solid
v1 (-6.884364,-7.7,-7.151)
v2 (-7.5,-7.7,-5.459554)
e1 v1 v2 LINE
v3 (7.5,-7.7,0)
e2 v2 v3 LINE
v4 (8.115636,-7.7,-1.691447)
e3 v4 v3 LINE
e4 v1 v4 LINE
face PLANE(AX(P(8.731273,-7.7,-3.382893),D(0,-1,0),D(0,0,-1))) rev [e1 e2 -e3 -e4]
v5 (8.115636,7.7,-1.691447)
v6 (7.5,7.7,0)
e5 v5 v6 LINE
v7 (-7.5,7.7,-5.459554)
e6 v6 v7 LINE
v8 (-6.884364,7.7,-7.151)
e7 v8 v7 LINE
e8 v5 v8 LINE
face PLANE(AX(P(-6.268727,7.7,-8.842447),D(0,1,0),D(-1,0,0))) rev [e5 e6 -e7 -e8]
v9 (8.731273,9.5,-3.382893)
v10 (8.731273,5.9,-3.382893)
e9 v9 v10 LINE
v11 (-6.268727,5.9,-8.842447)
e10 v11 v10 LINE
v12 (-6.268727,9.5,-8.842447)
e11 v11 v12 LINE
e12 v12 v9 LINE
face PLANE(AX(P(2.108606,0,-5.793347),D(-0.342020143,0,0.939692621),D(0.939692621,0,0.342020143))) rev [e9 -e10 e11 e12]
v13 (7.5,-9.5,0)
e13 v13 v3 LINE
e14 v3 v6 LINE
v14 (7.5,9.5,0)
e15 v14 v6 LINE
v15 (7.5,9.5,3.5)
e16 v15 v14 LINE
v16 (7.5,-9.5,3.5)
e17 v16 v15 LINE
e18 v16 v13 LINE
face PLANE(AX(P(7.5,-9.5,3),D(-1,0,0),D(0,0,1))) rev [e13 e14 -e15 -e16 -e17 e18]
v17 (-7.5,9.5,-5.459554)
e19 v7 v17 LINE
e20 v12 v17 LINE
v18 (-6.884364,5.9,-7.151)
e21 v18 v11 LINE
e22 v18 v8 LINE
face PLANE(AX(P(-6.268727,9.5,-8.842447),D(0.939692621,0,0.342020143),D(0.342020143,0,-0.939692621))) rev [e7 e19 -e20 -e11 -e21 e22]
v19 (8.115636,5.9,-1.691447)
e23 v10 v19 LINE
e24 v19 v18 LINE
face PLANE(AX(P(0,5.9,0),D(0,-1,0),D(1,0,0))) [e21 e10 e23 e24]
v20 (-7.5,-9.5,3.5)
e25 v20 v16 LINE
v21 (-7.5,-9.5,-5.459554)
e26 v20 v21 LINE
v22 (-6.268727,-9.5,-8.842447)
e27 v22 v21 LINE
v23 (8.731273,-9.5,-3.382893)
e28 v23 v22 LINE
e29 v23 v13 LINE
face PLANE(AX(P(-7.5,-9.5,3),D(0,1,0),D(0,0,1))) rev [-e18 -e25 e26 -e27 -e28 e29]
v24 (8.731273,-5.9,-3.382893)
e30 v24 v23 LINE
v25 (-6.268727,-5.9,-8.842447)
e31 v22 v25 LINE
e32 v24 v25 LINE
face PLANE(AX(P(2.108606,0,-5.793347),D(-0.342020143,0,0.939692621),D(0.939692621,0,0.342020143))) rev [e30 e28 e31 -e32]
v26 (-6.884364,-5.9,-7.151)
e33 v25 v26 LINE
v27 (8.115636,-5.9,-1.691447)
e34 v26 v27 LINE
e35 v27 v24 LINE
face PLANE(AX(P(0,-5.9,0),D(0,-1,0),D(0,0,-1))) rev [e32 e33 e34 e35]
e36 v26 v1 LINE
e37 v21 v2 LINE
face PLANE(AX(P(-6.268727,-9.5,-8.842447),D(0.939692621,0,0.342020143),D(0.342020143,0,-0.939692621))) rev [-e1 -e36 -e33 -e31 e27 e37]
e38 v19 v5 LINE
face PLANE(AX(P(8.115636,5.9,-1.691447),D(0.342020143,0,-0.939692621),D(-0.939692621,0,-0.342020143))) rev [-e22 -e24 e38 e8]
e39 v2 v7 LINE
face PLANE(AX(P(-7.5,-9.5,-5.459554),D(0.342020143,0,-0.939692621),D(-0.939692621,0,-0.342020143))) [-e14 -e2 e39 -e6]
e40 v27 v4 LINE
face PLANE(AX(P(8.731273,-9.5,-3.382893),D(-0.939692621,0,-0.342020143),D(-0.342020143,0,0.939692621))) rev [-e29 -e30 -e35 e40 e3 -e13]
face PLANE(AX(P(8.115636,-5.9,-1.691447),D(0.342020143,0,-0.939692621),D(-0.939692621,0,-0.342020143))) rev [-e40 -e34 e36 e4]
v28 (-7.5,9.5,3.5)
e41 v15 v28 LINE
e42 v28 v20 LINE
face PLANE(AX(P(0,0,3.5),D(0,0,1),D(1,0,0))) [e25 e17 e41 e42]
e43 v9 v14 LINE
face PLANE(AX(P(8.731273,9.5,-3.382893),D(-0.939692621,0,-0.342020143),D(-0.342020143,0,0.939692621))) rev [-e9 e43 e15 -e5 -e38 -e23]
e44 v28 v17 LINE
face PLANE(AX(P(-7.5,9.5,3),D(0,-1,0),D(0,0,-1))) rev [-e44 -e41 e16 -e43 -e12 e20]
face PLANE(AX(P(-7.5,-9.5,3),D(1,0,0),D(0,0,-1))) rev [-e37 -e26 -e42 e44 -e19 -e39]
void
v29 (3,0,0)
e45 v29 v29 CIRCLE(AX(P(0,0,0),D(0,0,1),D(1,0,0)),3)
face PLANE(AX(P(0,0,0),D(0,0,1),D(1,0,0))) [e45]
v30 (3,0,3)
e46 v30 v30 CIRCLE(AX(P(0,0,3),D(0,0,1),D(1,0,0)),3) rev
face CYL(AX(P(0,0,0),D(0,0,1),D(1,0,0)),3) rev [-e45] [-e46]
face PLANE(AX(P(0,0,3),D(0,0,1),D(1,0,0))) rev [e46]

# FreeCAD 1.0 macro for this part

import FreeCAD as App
import Part
import Sketcher
Q = App.Units.Quantity

doc = App.newDocument("Part")
body = doc.addObject("PartDesign::Body", "Body")

sketch1 = body.newObject("Sketcher::SketchObject", "Sketch")
sketch1.AttachmentSupport = (doc.getObject("XY_Plane"), [""])
sketch1.MapMode = "FlatFace"
sketch1.addGeometry([
    Part.LineSegment(App.Vector(-7.5, 9.5, 0), App.Vector(-7.5, -9.5, 0)),
    Part.LineSegment(App.Vector(-7.5, -9.5, 0), App.Vector(7.5, -9.5, 0)),
    Part.LineSegment(App.Vector(7.5, -9.5, 0), App.Vector(7.5, 9.5, 0)),
    Part.LineSegment(App.Vector(7.5, 9.5, 0), App.Vector(-7.5, 9.5, 0)),
], False)
sketch1.addConstraint([
    Sketcher.Constraint("Coincident", 0, 2, 1, 1),
    Sketcher.Constraint("Coincident", 1, 2, 2, 1),
    Sketcher.Constraint("Coincident", 2, 2, 3, 1),
    Sketcher.Constraint("Coincident", 3, 2, 0, 1),
    Sketcher.Constraint("Vertical", 0),
    Sketcher.Constraint("Horizontal", 1),
    Sketcher.Constraint("Vertical", 2),
    Sketcher.Constraint("Horizontal", 3),
    Sketcher.Constraint("Symmetric", 0, 2, 2, 2, -1, 1),
    Sketcher.Constraint("DistanceX", 1, 1, 1, 2, Q("15 mm")),
    Sketcher.Constraint("DistanceY", 0, 2, 0, 1, Q("19 mm")),
])
pad1 = body.newObject("PartDesign::Pad", "Pad")
pad1.Profile = sketch1
pad1.Length = 3

sketch2 = body.newObject("Sketcher::SketchObject", "Sketch001")
sketch2.AttachmentSupport = (doc.getObject("XZ_Plane"), [""])
sketch2.MapMode = "FlatFace"
sketch2.AttachmentOffset = App.Placement(App.Vector(0, 0, -9.5), App.Rotation())
sketch2.addGeometry([
    Part.LineSegment(App.Vector(-7.5, -5.459554, 0), App.Vector(-7.5, 0, 0)),
    Part.LineSegment(App.Vector(-7.5, 0, 0), App.Vector(7.5, 0, 0)),
    Part.LineSegment(App.Vector(7.5, 0, 0), App.Vector(-7.5, -5.459554, 0)),
], False)
sketch2.addConstraint([
    Sketcher.Constraint("Coincident", 0, 2, 1, 1),
    Sketcher.Constraint("Coincident", 1, 2, 2, 1),
    Sketcher.Constraint("Coincident", 2, 2, 0, 1),
    Sketcher.Constraint("Vertical", 0),
    Sketcher.Constraint("Horizontal", 1),
    Sketcher.Constraint("Symmetric", 0, 2, 1, 2, -1, 1),
    Sketcher.Constraint("DistanceX", 1, 1, 1, 2, Q("15 mm")),
    Sketcher.Constraint("Angle", 2, Q("-160 deg")),
])
pad2 = body.newObject("PartDesign::Pad", "Pad001")
pad2.Profile = sketch2
pad2.Length = 19

sketch3 = body.newObject("Sketcher::SketchObject", "Sketch002")
sketch3.AttachmentSupport = (doc.getObject("XY_Plane"), [""])
sketch3.MapMode = "FlatFace"
sketch3.AttachmentOffset = App.Placement(App.Vector(0, 0, 3), App.Rotation())
sketch3.addGeometry(Part.Circle(App.Vector(0, 0, 0), App.Vector(0, 0, 1), 3), False)
sketch3.addConstraint([
    Sketcher.Constraint("Coincident", 0, 3, -1, 1),
    Sketcher.Constraint("Diameter", 0, Q("6 mm")),
])
pocket1 = body.newObject("PartDesign::Pocket", "Pocket")
pocket1.Profile = sketch3
pocket1.Length = 3

sketch4 = body.newObject("Sketcher::SketchObject", "Sketch003")
sketch4.AttachmentSupport = (doc.getObject("XY_Plane"), [""])
sketch4.MapMode = "FlatFace"
sketch4.AttachmentOffset = App.Placement(App.Vector(0, 0, 3), App.Rotation())
sketch4.addGeometry([
    Part.LineSegment(App.Vector(-7.5, 9.5, 0), App.Vector(-7.5, -9.5, 0)),
    Part.LineSegment(App.Vector(-7.5, -9.5, 0), App.Vector(7.5, -9.5, 0)),
    Part.LineSegment(App.Vector(7.5, -9.5, 0), App.Vector(7.5, 9.5, 0)),
    Part.LineSegment(App.Vector(7.5, 9.5, 0), App.Vector(-7.5, 9.5, 0)),
], False)
sketch4.addConstraint([
    Sketcher.Constraint("Coincident", 0, 2, 1, 1),
    Sketcher.Constraint("Coincident", 1, 2, 2, 1),
    Sketcher.Constraint("Coincident", 2, 2, 3, 1),
    Sketcher.Constraint("Coincident", 3, 2, 0, 1),
    Sketcher.Constraint("Vertical", 0),
    Sketcher.Constraint("Horizontal", 1),
    Sketcher.Constraint("Vertical", 2),
    Sketcher.Constraint("Horizontal", 3),
    Sketcher.Constraint("Symmetric", 0, 2, 2, 2, -1, 1),
    Sketcher.Constraint("DistanceX", 1, 1, 1, 2, Q("15 mm")),
    Sketcher.Constraint("DistanceY", 0, 2, 0, 1, Q("19 mm")),
])
pad3 = body.newObject("PartDesign::Pad", "Pad002")
pad3.Profile = sketch4
pad3.Length = 0.5

sketch5 = body.newObject("Sketcher::SketchObject", "Sketch004")
sketch5.Placement = App.Placement(App.Vector(0.877333, 0, -2.410454), App.Rotation(App.Vector(-0.939692621, 0, -0.342020143), App.Vector(0, 1, 0), App.Vector(0.342020143, 0, -0.939692621), "ZXY"))
sketch5.addGeometry([
    Part.LineSegment(App.Vector(-7.047695, 9.5, 0), App.Vector(-7.047695, 7.7, 0)),
    Part.LineSegment(App.Vector(-7.047695, 7.7, 0), App.Vector(8.914972, 7.7, 0)),
    Part.LineSegment(App.Vector(8.914972, 7.7, 0), App.Vector(8.914972, 9.5, 0)),
    Part.LineSegment(App.Vector(8.914972, 9.5, 0), App.Vector(-7.047695, 9.5, 0)),
    Part.LineSegment(App.Vector(-7.047695, -7.7, 0), App.Vector(-7.047695, -9.5, 0)),
    Part.LineSegment(App.Vector(-7.047695, -9.5, 0), App.Vector(8.914972, -9.5, 0)),
    Part.LineSegment(App.Vector(8.914972, -9.5, 0), App.Vector(8.914972, -7.7, 0)),
    Part.LineSegment(App.Vector(8.914972, -7.7, 0), App.Vector(-7.047695, -7.7, 0)),
], False)
sketch5.addConstraint([
    Sketcher.Constraint("Coincident", 0, 2, 1, 1),
    Sketcher.Constraint("Coincident", 1, 2, 2, 1),
    Sketcher.Constraint("Coincident", 2, 2, 3, 1),
    Sketcher.Constraint("Coincident", 3, 2, 0, 1),
    Sketcher.Constraint("Coincident", 4, 2, 5, 1),
    Sketcher.Constraint("Coincident", 5, 2, 6, 1),
    Sketcher.Constraint("Coincident", 6, 2, 7, 1),
    Sketcher.Constraint("Coincident", 7, 2, 4, 1),
    Sketcher.Constraint("Vertical", 0),
    Sketcher.Constraint("Horizontal", 1),
    Sketcher.Constraint("Vertical", 2),
    Sketcher.Constraint("Horizontal", 3),
    Sketcher.Constraint("Vertical", 4),
    Sketcher.Constraint("Horizontal", 5),
    Sketcher.Constraint("Vertical", 6),
    Sketcher.Constraint("Horizontal", 7),
    Sketcher.Constraint("Symmetric", 3, 2, 4, 2, -1),
    Sketcher.Constraint("Symmetric", 1, 2, 6, 2, -1),
    Sketcher.Constraint("DistanceY", 0, 2, 0, 1, Q("1.8 mm")),
    Sketcher.Constraint("DistanceY", 4, 2, 3, 2, Q("19 mm")),
    Sketcher.Constraint("DistanceX", 1, 1, 1, 2, Q("15.962667 mm")),
    Sketcher.Constraint("DistanceX", -1, 1, 1, 2, Q("8.914972 mm")),
])
pad4 = body.newObject("PartDesign::Pad", "Pad003")
pad4.Profile = sketch5
pad4.Length = 3.6

sketch6 = body.newObject("Sketcher::SketchObject", "Sketch005")
sketch6.AttachmentSupport = (doc.getObject("XZ_Plane"), [""])
sketch6.MapMode = "FlatFace"
sketch6.AttachmentOffset = App.Placement(App.Vector(0, 0, -7.7), App.Rotation())
sketch6.addGeometry([
    Part.LineSegment(App.Vector(8.731273, -3.382893, 0), App.Vector(8.115636, -1.691447, 0)),
    Part.LineSegment(App.Vector(8.115636, -1.691447, 0), App.Vector(-6.884364, -7.151, 0)),
    Part.LineSegment(App.Vector(-6.884364, -7.151, 0), App.Vector(-6.268727, -8.842447, 0)),
    Part.LineSegment(App.Vector(-6.268727, -8.842447, 0), App.Vector(8.731273, -3.382893, 0)),
], False)
sketch6.addConstraint([
    Sketcher.Constraint("Coincident", 0, 2, 1, 1),
    Sketcher.Constraint("Coincident", 1, 2, 2, 1),
    Sketcher.Constraint("Coincident", 2, 2, 3, 1),
    Sketcher.Constraint("Coincident", 3, 2, 0, 1),
    Sketcher.Constraint("Perpendicular", 0, 1),
    Sketcher.Constraint("Perpendicular", 1, 2),
    Sketcher.Constraint("Perpendicular", 2, 3),
    Sketcher.Constraint("Angle", 0, Q("110 deg")),
    Sketcher.Constraint("DistanceX", 1, 2, 0, 2, Q("15 mm")),
    Sketcher.Constraint("Distance", 0, Q("1.8 mm")),
    Sketcher.Constraint("DistanceY", 1, 2, -1, 1, Q("7.151 mm")),
    Sketcher.Constraint("DistanceX", -1, 1, 0, 2, Q("8.115636 mm")),
])
pad5 = body.newObject("PartDesign::Pad", "Pad004")
pad5.Profile = sketch6
pad5.Length = 1.8

sketch7 = body.newObject("Sketcher::SketchObject", "Sketch006")
sketch7.AttachmentSupport = (doc.getObject("XZ_Plane"), [""])
sketch7.MapMode = "FlatFace"
sketch7.AttachmentOffset = App.Placement(App.Vector(0, 0, 7.7), App.Rotation())
sketch7.addGeometry([
    Part.LineSegment(App.Vector(-6.884364, -7.151, 0), App.Vector(8.115636, -1.691447, 0)),
    Part.LineSegment(App.Vector(8.115636, -1.691447, 0), App.Vector(8.731273, -3.382893, 0)),
    Part.LineSegment(App.Vector(8.731273, -3.382893, 0), App.Vector(-6.268727, -8.842447, 0)),
    Part.LineSegment(App.Vector(-6.268727, -8.842447, 0), App.Vector(-6.884364, -7.151, 0)),
], False)
sketch7.addConstraint([
    Sketcher.Constraint("Coincident", 0, 2, 1, 1),
    Sketcher.Constraint("Coincident", 1, 2, 2, 1),
    Sketcher.Constraint("Coincident", 2, 2, 3, 1),
    Sketcher.Constraint("Coincident", 3, 2, 0, 1),
    Sketcher.Constraint("Perpendicular", 0, 1),
    Sketcher.Constraint("Perpendicular", 1, 2),
    Sketcher.Constraint("Perpendicular", 2, 3),
    Sketcher.Constraint("Angle", 0, Q("20 deg")),
    Sketcher.Constraint("DistanceX", 2, 2, 1, 2, Q("15 mm")),
    Sketcher.Constraint("Distance", 1, Q("1.8 mm")),
    Sketcher.Constraint("DistanceY", 3, 2, -1, 1, Q("7.151 mm")),
    Sketcher.Constraint("DistanceX", -1, 1, 0, 2, Q("8.115636 mm")),
])
pad6 = body.newObject("PartDesign::Pad", "Pad005")
pad6.Profile = sketch7
pad6.Length = 1.8
pad6.Reversed = True

doc.recompute()
